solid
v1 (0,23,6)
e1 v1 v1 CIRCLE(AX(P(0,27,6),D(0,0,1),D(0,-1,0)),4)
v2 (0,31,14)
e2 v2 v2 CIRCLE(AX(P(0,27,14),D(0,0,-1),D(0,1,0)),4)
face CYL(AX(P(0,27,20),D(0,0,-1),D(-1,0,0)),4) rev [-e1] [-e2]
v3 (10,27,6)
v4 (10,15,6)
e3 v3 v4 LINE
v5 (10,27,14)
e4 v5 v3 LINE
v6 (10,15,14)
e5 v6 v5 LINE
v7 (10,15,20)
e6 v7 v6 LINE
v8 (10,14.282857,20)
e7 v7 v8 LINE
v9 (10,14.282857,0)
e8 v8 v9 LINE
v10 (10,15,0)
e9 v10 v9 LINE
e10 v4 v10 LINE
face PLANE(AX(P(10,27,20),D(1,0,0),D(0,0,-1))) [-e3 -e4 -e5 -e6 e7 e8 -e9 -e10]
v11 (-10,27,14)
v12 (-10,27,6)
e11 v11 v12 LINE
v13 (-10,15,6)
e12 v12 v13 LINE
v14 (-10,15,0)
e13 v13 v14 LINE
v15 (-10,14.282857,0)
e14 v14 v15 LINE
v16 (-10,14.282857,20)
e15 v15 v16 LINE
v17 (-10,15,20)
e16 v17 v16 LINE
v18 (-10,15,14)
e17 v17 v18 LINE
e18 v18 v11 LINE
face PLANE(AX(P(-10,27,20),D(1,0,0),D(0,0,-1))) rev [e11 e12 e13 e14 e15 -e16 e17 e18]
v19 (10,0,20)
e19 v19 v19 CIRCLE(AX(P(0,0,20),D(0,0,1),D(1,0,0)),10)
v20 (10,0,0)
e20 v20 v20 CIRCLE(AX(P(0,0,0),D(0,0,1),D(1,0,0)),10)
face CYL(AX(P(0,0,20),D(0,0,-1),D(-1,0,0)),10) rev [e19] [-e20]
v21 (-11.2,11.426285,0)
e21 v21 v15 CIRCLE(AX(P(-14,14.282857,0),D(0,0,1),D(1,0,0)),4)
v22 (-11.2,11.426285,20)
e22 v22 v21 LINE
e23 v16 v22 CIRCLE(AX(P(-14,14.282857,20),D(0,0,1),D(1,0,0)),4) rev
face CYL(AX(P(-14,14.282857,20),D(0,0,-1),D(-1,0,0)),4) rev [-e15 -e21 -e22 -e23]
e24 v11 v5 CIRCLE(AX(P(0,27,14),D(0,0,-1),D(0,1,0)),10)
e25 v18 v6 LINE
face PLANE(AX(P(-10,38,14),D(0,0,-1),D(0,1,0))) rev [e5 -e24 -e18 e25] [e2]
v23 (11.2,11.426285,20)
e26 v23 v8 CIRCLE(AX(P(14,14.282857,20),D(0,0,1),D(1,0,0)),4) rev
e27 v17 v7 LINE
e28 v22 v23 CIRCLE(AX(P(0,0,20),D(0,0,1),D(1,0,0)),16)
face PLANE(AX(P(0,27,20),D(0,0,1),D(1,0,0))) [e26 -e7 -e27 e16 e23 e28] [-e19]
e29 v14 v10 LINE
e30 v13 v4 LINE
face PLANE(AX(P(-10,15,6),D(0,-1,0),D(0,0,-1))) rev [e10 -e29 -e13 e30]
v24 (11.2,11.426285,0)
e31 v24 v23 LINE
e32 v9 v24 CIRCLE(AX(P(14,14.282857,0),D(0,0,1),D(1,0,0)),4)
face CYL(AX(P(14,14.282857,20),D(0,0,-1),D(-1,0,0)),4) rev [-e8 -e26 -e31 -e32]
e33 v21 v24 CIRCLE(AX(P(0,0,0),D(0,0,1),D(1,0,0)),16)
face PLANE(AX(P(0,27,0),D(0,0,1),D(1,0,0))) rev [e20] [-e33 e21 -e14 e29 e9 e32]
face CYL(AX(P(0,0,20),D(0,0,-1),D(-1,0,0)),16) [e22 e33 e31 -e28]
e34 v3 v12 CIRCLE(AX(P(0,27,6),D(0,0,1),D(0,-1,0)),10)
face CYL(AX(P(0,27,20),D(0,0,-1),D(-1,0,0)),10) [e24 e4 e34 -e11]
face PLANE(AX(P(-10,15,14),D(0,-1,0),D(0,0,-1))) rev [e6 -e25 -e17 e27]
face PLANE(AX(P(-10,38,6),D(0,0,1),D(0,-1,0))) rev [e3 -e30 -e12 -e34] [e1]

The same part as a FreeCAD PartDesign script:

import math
import FreeCAD as App
import Part
import Sketcher
from FreeCAD import Vector


def edges_at(feature, points):
    """Names of the edges that pass closest to the given points."""
    edges = feature.Shape.Edges
    near = lambda p: min(range(len(edges)), key=lambda i: edges[i].distToShape(Part.Vertex(*p))[0])
    return sorted({f"Edge{near(p) + 1}" for p in points})


def add_polygon(sketch, points):
    """Adds a closed chain of lines whose ends are joined by coincident constraints."""
    first, n = sketch.GeometryCount, len(points)
    for a, b in zip(points, points[1:] + points[:1]):
        sketch.addGeometry(Part.LineSegment(App.Vector(*a, 0), App.Vector(*b, 0)), False)
    for i in range(n):
        sketch.addConstraint(Sketcher.Constraint("Coincident", first + i, 2, first + (i + 1) % n, 1))

doc = App.newDocument("Part")
body = doc.addObject("PartDesign::Body", "Body")

sketch1 = body.newObject("Sketcher::SketchObject", "Sketch")
sketch1.AttachmentSupport = (doc.getObject("XY_Plane"), [""])
sketch1.MapMode = "FlatFace"
sketch1.addGeometry(Part.LineSegment(Vector(10, 12.5, 0), Vector(10, 27, 0)), False)
sketch1.addGeometry(Part.ArcOfCircle(Part.Circle(Vector(0, 27, 0), Vector(0, 0, 1), 10), math.radians(0), math.radians(180)), False)
sketch1.addGeometry(Part.LineSegment(Vector(-10, 27, 0), Vector(-10, 12.5, 0)), False)
sketch1.addGeometry(Part.ArcOfCircle(Part.Circle(Vector(0, 0, 0), Vector(0, 0, 1), 16), math.radians(129), math.radians(411)), False)
sketch1.addGeometry(Part.Circle(Vector(0, 0, 0), Vector(0, 0, 1), 10), False)
sketch1.addGeometry(Part.Circle(Vector(0, 27, 0), Vector(0, 0, 1), 4), False)
sketch1.addConstraint(Sketcher.Constraint("Tangent", 0, 2, 1, 1))
sketch1.addConstraint(Sketcher.Constraint("Tangent", 1, 2, 2, 1))
sketch1.addConstraint(Sketcher.Constraint("Coincident", 2, 2, 3, 1))
sketch1.addConstraint(Sketcher.Constraint("Coincident", 3, 2, 0, 1))
sketch1.addConstraint(Sketcher.Constraint("Vertical", 0))
sketch1.addConstraint(Sketcher.Constraint("Vertical", 2))
sketch1.addConstraint(Sketcher.Constraint("Coincident", 3, 3, -1, 1))
sketch1.addConstraint(Sketcher.Constraint("Coincident", 4, 3, -1, 1))
sketch1.addConstraint(Sketcher.Constraint("Coincident", 5, 3, 1, 3))
sketch1.addConstraint(Sketcher.Constraint("Equal", 1, 4))
sketch1.addConstraint(Sketcher.Constraint("PointOnObject", 1, 3, -2))
sketch1.addConstraint(Sketcher.Constraint("Diameter", 4, 20.0))
sketch1.addConstraint(Sketcher.Constraint("Diameter", 5, 8.0))
sketch1.addConstraint(Sketcher.Constraint("Radius", 3, 16.0))
sketch1.addConstraint(Sketcher.Constraint("DistanceY", -1, 1, 1, 3, 27.0))
pad1 = body.newObject("PartDesign::Pad", "Pad")
pad1.Profile = sketch1
pad1.Length = 20
doc.recompute()

fillet = body.newObject("PartDesign::Fillet", "Fillet")
fillet.Base = (pad1, edges_at(pad1, [(10, 12.49, 10), (-10, 12.49, 10)]))
fillet.Radius = 4

sketch2 = body.newObject("Sketcher::SketchObject", "Sketch001")
sketch2.AttachmentSupport = (doc.getObject("YZ_Plane"), [""])
sketch2.MapMode = "FlatFace"
add_polygon(sketch2, [(38, 28), (15, 28), (15, 14), (38, 14)])
add_polygon(sketch2, [(38, 6), (15, 6), (15, -8), (38, -8)])
sketch2.addConstraint(Sketcher.Constraint("Horizontal", 0))
sketch2.addConstraint(Sketcher.Constraint("Vertical", 1))
sketch2.addConstraint(Sketcher.Constraint("Horizontal", 2))
sketch2.addConstraint(Sketcher.Constraint("Vertical", 3))
sketch2.addConstraint(Sketcher.Constraint("Horizontal", 4))
sketch2.addConstraint(Sketcher.Constraint("Vertical", 5))
sketch2.addConstraint(Sketcher.Constraint("Horizontal", 6))
sketch2.addConstraint(Sketcher.Constraint("Vertical", 7))
sketch2.addConstraint(Sketcher.Constraint("Vertical", 1, 2, 4, 2))
sketch2.addConstraint(Sketcher.Constraint("Vertical", 3, 2, 6, 2))
sketch2.addConstraint(Sketcher.Constraint("Equal", 3, 5))
sketch2.addConstraint(Sketcher.Constraint("DistanceX", 0, 2, 0, 1, 23.0))
sketch2.addConstraint(Sketcher.Constraint("DistanceY", 1, 2, 1, 1, 14.0))
sketch2.addConstraint(Sketcher.Constraint("DistanceX", -1, 1, 0, 2, 15.0))
sketch2.addConstraint(Sketcher.Constraint("DistanceY", -1, 1, 0, 2, 28.0))
sketch2.addConstraint(Sketcher.Constraint("DistanceY", -1, 1, 4, 2, 6.0))
pocket1 = body.newObject("PartDesign::Pocket", "Pocket")
pocket1.Profile = sketch2
pocket1.Length = 20
pocket1.Midplane = True

doc.recompute()
